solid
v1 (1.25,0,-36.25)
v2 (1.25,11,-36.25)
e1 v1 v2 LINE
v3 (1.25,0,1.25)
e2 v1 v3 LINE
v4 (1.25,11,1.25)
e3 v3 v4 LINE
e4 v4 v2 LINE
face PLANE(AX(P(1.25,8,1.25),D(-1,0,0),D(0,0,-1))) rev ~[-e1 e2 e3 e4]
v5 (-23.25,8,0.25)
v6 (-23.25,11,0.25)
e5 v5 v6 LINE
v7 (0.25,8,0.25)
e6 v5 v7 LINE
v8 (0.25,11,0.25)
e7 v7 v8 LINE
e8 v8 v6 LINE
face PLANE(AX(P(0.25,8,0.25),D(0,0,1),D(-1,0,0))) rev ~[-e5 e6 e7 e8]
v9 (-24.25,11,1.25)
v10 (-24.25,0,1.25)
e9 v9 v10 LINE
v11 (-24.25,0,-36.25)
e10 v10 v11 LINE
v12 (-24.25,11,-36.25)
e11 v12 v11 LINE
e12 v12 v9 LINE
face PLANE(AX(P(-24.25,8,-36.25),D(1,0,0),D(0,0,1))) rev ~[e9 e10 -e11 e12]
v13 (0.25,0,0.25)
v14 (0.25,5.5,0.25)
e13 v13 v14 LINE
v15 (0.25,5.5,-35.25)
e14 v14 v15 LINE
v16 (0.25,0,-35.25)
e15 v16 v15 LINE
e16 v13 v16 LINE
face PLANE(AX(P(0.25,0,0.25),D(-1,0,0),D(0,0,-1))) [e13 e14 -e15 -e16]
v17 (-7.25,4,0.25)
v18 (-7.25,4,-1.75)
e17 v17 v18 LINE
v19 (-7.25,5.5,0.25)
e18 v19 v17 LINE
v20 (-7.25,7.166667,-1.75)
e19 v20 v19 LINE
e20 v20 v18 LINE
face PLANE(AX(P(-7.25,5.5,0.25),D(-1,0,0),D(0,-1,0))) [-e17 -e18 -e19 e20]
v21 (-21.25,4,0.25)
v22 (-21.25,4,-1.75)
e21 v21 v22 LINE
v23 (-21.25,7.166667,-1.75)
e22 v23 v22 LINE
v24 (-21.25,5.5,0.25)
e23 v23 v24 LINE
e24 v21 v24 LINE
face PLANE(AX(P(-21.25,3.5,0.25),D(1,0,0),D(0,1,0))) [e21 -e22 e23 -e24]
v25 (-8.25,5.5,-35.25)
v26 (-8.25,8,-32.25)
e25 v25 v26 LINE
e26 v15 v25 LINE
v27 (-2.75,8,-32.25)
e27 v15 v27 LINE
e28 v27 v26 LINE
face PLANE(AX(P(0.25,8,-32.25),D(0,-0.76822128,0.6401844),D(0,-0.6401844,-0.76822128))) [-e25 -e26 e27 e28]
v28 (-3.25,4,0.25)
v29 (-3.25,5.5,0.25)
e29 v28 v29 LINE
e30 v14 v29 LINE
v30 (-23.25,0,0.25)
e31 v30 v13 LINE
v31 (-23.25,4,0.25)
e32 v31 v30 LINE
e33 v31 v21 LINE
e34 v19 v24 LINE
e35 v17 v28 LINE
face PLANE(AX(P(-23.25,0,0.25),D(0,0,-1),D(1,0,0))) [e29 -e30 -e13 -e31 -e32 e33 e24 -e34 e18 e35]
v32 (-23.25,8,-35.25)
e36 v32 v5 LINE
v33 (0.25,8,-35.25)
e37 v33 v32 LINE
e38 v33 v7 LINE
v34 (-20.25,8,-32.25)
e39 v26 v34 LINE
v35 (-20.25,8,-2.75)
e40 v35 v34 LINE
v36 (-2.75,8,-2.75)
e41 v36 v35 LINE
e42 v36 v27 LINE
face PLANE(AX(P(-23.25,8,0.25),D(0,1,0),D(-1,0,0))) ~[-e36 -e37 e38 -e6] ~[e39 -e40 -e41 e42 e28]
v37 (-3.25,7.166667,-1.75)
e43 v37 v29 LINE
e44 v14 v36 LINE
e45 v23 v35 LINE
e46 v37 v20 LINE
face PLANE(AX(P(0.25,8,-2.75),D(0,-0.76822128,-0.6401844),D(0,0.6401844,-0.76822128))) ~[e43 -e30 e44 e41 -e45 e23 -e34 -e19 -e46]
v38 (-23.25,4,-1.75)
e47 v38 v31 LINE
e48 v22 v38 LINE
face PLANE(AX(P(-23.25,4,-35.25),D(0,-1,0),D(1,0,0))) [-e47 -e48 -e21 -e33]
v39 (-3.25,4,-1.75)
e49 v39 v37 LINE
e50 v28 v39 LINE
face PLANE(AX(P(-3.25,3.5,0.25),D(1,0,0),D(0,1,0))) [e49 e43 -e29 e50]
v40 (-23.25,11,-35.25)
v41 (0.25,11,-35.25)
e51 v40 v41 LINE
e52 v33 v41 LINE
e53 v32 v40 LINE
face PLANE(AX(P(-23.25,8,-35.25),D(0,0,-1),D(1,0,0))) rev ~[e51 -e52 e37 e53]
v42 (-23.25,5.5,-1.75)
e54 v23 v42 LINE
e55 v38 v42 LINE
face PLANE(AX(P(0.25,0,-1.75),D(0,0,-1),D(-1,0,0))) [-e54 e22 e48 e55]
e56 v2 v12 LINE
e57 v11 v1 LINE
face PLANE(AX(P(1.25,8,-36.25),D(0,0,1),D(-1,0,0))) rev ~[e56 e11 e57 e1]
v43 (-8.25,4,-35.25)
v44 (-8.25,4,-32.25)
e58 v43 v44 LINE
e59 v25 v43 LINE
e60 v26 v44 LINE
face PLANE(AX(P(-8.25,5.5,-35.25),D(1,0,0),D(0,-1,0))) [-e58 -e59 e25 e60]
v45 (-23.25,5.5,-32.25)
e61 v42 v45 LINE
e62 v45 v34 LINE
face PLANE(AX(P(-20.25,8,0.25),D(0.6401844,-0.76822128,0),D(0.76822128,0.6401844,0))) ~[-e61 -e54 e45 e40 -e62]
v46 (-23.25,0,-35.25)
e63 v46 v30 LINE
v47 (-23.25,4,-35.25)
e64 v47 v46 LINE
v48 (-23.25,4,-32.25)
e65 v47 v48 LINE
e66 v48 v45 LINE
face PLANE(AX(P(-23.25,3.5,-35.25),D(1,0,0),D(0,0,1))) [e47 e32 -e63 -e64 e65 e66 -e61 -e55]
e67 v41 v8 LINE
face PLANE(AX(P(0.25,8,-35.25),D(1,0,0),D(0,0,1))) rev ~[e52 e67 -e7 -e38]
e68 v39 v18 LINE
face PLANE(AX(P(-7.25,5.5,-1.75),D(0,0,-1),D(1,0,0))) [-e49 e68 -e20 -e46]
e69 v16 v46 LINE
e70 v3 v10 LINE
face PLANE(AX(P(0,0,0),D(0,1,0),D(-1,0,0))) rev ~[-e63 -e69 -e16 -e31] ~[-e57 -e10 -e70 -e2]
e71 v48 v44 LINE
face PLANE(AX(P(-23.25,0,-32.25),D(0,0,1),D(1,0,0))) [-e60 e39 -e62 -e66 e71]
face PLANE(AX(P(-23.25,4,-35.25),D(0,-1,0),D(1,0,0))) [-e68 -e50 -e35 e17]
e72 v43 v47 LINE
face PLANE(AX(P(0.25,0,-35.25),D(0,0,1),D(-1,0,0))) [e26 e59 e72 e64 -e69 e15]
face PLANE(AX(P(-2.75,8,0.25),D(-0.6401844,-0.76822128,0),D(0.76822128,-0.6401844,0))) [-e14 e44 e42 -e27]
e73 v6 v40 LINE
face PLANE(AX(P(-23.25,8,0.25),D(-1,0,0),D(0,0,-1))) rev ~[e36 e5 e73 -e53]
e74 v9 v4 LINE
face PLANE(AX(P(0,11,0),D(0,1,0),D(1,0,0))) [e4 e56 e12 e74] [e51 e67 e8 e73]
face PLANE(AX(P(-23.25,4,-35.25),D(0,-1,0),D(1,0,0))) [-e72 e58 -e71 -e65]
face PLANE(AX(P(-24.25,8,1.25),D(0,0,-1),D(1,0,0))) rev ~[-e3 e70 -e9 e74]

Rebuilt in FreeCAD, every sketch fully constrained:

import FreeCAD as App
import Part
import Sketcher

V = App.Vector
Q = App.Units.Quantity


def add_polygon(sketch, points):
    """Adds a closed chain of lines whose ends are joined by coincident constraints."""
    first, n = sketch.GeometryCount, len(points)
    for a, b in zip(points, points[1:] + points[:1]):
        sketch.addGeometry(Part.LineSegment(App.Vector(*a, 0), App.Vector(*b, 0)), False)
    for i in range(n):
        sketch.addConstraint(Sketcher.Constraint("Coincident", first + i, 2, first + (i + 1) % n, 1))

doc = App.newDocument("Part")
params = doc.addObject("Spreadsheet::Sheet", "Params")
for row, (alias, value) in enumerate([
    ("sketch1_width", "25.5 mm"),
    ("sketch1_height", "37.5 mm"),
    ("pad1_length", "8 mm"),
    ("sketch2_width", "3 mm"),
    ("sketch2_height", "2.5 mm"),
    ("pad2_length", "35.5 mm"),
    ("sketch3_height", "3 mm"),
    ("sketch3_width", "2.5 mm"),
    ("pad3_length", "23.5 mm"),
    ("sketch4_width", "25.5 mm"),
    ("sketch4_width2", "23.5 mm"),
    ("sketch4_height", "37.5 mm"),
    ("sketch4_height2", "35.5 mm"),
    ("pad4_length", "3 mm"),
    ("sketch5_width", "15 mm"),
    ("sketch5_height", "2 mm"),
    ("pad5_length", "3 mm"),
    ("sketch6_width", "2 mm"),
    ("sketch6_width2", "4 mm"),
    ("pad6_length", "2 mm"),
    ("sketch7_width", "4 mm"),
    ("sketch7_width2", "2 mm"),
    ("sketch7_width3", "15 mm"),
    ("sketch7_height", "3 mm"),
    ("pad7_length", "2.5 mm"),
    ("sketch8_width", "2 mm"),
    ("sketch8_width2", "4 mm"),
    ("sketch8_width3", "15 mm"),
    ("sketch8_height", "3 mm"),
    ("pocket1_length", "0.5 mm"),
], start=1):
    params.set(f"A{row}", alias)
    params.set(f"B{row}", "=" + value)
    params.setAlias(f"B{row}", alias)

body = doc.addObject("PartDesign::Body", "Body")

sketch1 = body.newObject("Sketcher::SketchObject", "Sketch")
sketch1.AttachmentSupport = (doc.getObject("XZ_Plane"), [""])
sketch1.MapMode = "FlatFace"
add_polygon(sketch1, [(-24, -36), (-24, 1), (1, 1), (1, -36)])
add_polygon(sketch1, [(-23, 0), (-23, -35), (0, -35), (0, 0)])
sketch1.addConstraint([
    Sketcher.Constraint("Vertical", 0),
    Sketcher.Constraint("Horizontal", 1),
    Sketcher.Constraint("Vertical", 2),
    Sketcher.Constraint("Horizontal", 3),
    Sketcher.Constraint("Vertical", 4),
    Sketcher.Constraint("Horizontal", 5),
    Sketcher.Constraint("Vertical", 6),
    Sketcher.Constraint("Horizontal", 7),
    Sketcher.Constraint("DistanceX", 3, 2, 4, 2, Q("1 mm")),
    Sketcher.Constraint("DistanceY", 3, 2, 4, 2, Q("1 mm")),
    Sketcher.Constraint("DistanceX", 5, 2, 2, 2, Q("1 mm")),
    Sketcher.Constraint("DistanceY", 6, 2, 1, 2, Q("1 mm")),
    Sketcher.Constraint("DistanceX", -1, 1, 5, 2, Q("0.25 mm")),
    Sketcher.Constraint("DistanceY", -1, 1, 6, 2, Q("0.25 mm")),
    Sketcher.Constraint("DistanceX", 1, 1, 1, 2, Q("25.5 mm")),
    Sketcher.Constraint("DistanceY", 0, 1, 0, 2, Q("37.5 mm")),
])
sketch1.setExpression("Constraints[22]", "Params.sketch1_width")
sketch1.setExpression("Constraints[23]", "Params.sketch1_height")
pad1 = body.newObject("PartDesign::Pad", "Pad")
pad1.Profile = sketch1
pad1.setExpression("Length", "Params.pad1_length")
pad1.Reversed = True

sketch2 = body.newObject("Sketcher::SketchObject", "Sketch001")
sketch2.AttachmentSupport = (doc.getObject("XY_Plane"), [""])
sketch2.MapMode = "FlatFace"
sketch2.AttachmentOffset = App.Placement(V(0, 0, 0.25), App.Rotation())
add_polygon(sketch2, [(0.2, 8), (0.2, 5.5), (-2.8, 8)])
sketch2.addConstraint([
    Sketcher.Constraint("Vertical", 0),
    Sketcher.Constraint("Horizontal", 2),
    Sketcher.Constraint("DistanceX", 2, 1, 2, 2, Q("3 mm")),
    Sketcher.Constraint("DistanceY", 0, 2, 0, 1, Q("2.5 mm")),
    Sketcher.Constraint("DistanceY", -1, 1, 1, 2, Q("8 mm")),
    Sketcher.Constraint("DistanceX", -1, 1, 0, 2, Q("0.25 mm")),
])
sketch2.setExpression("Constraints[5]", "Params.sketch2_width")
sketch2.setExpression("Constraints[6]", "Params.sketch2_height")
pad2 = body.newObject("PartDesign::Pad", "Pad001")
pad2.Profile = sketch2
pad2.setExpression("Length", "Params.pad2_length")
pad2.Reversed = True
doc.recompute()

datumplane = body.newObject("PartDesign::Plane", "DatumPlane")
datumplane.AttachmentSupport = (doc.getObject("YZ_Plane"), [""])
datumplane.MapMode = "FlatFace"
datumplane.AttachmentOffset = App.Placement(V(0, 0, -11.5), App.Rotation())
mirrored = body.newObject("PartDesign::Mirrored", "Mirrored")
mirrored.Originals = [pad2]
mirrored.MirrorPlane = (datumplane, [""])
body.Tip = mirrored

sketch3 = body.newObject("Sketcher::SketchObject", "Sketch002")
sketch3.AttachmentSupport = (doc.getObject("YZ_Plane"), [""])
sketch3.MapMode = "FlatFace"
sketch3.AttachmentOffset = App.Placement(V(0, 0, 0.25), App.Rotation())
add_polygon(sketch3, [(8, -35.2), (5.5, -35.2), (8, -32.2)])
sketch3.addConstraint([
    Sketcher.Constraint("Horizontal", 0),
    Sketcher.Constraint("Vertical", 2),
    Sketcher.Constraint("DistanceY", 2, 2, 2, 1, Q("3 mm")),
    Sketcher.Constraint("DistanceX", 0, 2, 0, 1, Q("2.5 mm")),
    Sketcher.Constraint("DistanceX", -1, 1, 1, 2, Q("8 mm")),
    Sketcher.Constraint("DistanceY", 0, 2, -1, 1, Q("35.25 mm")),
])
sketch3.setExpression("Constraints[5]", "Params.sketch3_height")
sketch3.setExpression("Constraints[6]", "Params.sketch3_width")
pad3 = body.newObject("PartDesign::Pad", "Pad002")
pad3.Profile = sketch3
pad3.setExpression("Length", "Params.pad3_length")
pad3.Reversed = True
doc.recompute()

datumplane2 = body.newObject("PartDesign::Plane", "DatumPlane001")
datumplane2.AttachmentSupport = (doc.getObject("XY_Plane"), [""])
datumplane2.MapMode = "FlatFace"
datumplane2.AttachmentOffset = App.Placement(V(0, 0, -17.5), App.Rotation())
mirrored2 = body.newObject("PartDesign::Mirrored", "Mirrored001")
mirrored2.Originals = [pad3]
mirrored2.MirrorPlane = (datumplane2, [""])
body.Tip = mirrored2

sketch4 = body.newObject("Sketcher::SketchObject", "Sketch003")
sketch4.AttachmentSupport = (doc.getObject("XZ_Plane"), [""])
sketch4.MapMode = "FlatFace"
sketch4.AttachmentOffset = App.Placement(V(0, 0, -8), App.Rotation())
add_polygon(sketch4, [(-24, 1), (1, 1), (1, -36), (-24, -36)])
add_polygon(sketch4, [(-23, 0), (-23, -35), (0, -35), (0, 0)])
sketch4.addConstraint([
    Sketcher.Constraint("Horizontal", 0),
    Sketcher.Constraint("Vertical", 1),
    Sketcher.Constraint("Horizontal", 2),
    Sketcher.Constraint("Vertical", 3),
    Sketcher.Constraint("Vertical", 4),
    Sketcher.Constraint("Horizontal", 5),
    Sketcher.Constraint("Vertical", 6),
    Sketcher.Constraint("Horizontal", 7),
    Sketcher.Constraint("DistanceX", 0, 1, 0, 2, Q("25.5 mm")),
    Sketcher.Constraint("DistanceX", 5, 1, 5, 2, Q("23.5 mm")),
    Sketcher.Constraint("DistanceY", 1, 2, 1, 1, Q("37.5 mm")),
    Sketcher.Constraint("DistanceY", 4, 2, 4, 1, Q("35.5 mm")),
    Sketcher.Constraint("DistanceX", 2, 2, 4, 2, Q("1 mm")),
    Sketcher.Constraint("DistanceY", 2, 2, 4, 2, Q("1 mm")),
    Sketcher.Constraint("DistanceX", -1, 1, 0, 2, Q("1.25 mm")),
    Sketcher.Constraint("DistanceY", -1, 1, 0, 2, Q("1.25 mm")),
])
sketch4.setExpression("Constraints[16]", "Params.sketch4_width")
sketch4.setExpression("Constraints[17]", "Params.sketch4_width2")
sketch4.setExpression("Constraints[18]", "Params.sketch4_height")
sketch4.setExpression("Constraints[19]", "Params.sketch4_height2")
pad4 = body.newObject("PartDesign::Pad", "Pad003")
pad4.Profile = sketch4
pad4.setExpression("Length", "Params.pad4_length")
pad4.Reversed = True

sketch5 = body.newObject("Sketcher::SketchObject", "Sketch004")
sketch5.AttachmentSupport = (doc.getObject("XY_Plane"), [""])
sketch5.MapMode = "FlatFace"
sketch5.AttachmentOffset = App.Placement(V(0, 0, -35.25), App.Rotation())
add_polygon(sketch5, [(-8.2, 3.5), (-8.2, 5.5), (-23.2, 5.5), (-23.2, 3.5)])
sketch5.addConstraint([
    Sketcher.Constraint("Vertical", 0),
    Sketcher.Constraint("Horizontal", 1),
    Sketcher.Constraint("Vertical", 2),
    Sketcher.Constraint("Horizontal", 3),
    Sketcher.Constraint("DistanceX", 1, 2, 1, 1, Q("15 mm")),
    Sketcher.Constraint("DistanceY", 0, 1, 0, 2, Q("2 mm")),
    Sketcher.Constraint("DistanceY", -1, 1, 2, 2, Q("3.5 mm")),
    Sketcher.Constraint("DistanceX", 0, 2, -1, 1, Q("8.25 mm")),
])
sketch5.setExpression("Constraints[8]", "Params.sketch5_width")
sketch5.setExpression("Constraints[9]", "Params.sketch5_height")
pad5 = body.newObject("PartDesign::Pad", "Pad004")
pad5.Profile = sketch5
pad5.setExpression("Length", "Params.pad5_length")

sketch6 = body.newObject("Sketcher::SketchObject", "Sketch005")
sketch6.AttachmentSupport = (doc.getObject("XY_Plane"), [""])
sketch6.MapMode = "FlatFace"
sketch6.AttachmentOffset = App.Placement(V(0, 0, 0.25), App.Rotation())
add_polygon(sketch6, [(-21.2, 3.5), (-23.2, 3.5), (-23.2, 5.5), (-21.2, 5.5)])
add_polygon(sketch6, [(-7.2, 3.5), (-7.2, 5.5), (-3.2, 5.5), (-3.2, 3.5)])
sketch6.addConstraint([
    Sketcher.Constraint("Horizontal", 0),
    Sketcher.Constraint("Vertical", 1),
    Sketcher.Constraint("Horizontal", 2),
    Sketcher.Constraint("Vertical", 3),
    Sketcher.Constraint("Vertical", 4),
    Sketcher.Constraint("Horizontal", 5),
    Sketcher.Constraint("Vertical", 6),
    Sketcher.Constraint("Horizontal", 7),
    Sketcher.Constraint("Horizontal", 2, 2, 4, 2),
    Sketcher.Constraint("Horizontal", 3, 2, 6, 2),
    Sketcher.Constraint("Equal", 2, 1),
    Sketcher.Constraint("DistanceX", 0, 2, 0, 1, Q("2 mm")),
    Sketcher.Constraint("DistanceX", 5, 1, 5, 2, Q("4 mm")),
    Sketcher.Constraint("DistanceY", -1, 1, 0, 2, Q("3.5 mm")),
    Sketcher.Constraint("DistanceX", 2, 2, 4, 2, Q("14 mm")),
    Sketcher.Constraint("DistanceX", 0, 2, -1, 1, Q("23.25 mm")),
])
sketch6.setExpression("Constraints[19]", "Params.sketch6_width")
sketch6.setExpression("Constraints[20]", "Params.sketch6_width2")
pad6 = body.newObject("PartDesign::Pad", "Pad005")
pad6.Profile = sketch6
pad6.setExpression("Length", "Params.pad6_length")
pad6.Reversed = True

sketch7 = body.newObject("Sketcher::SketchObject", "Sketch006")
sketch7.AttachmentSupport = (doc.getObject("XZ_Plane"), [""])
sketch7.MapMode = "FlatFace"
sketch7.AttachmentOffset = App.Placement(V(0, 0, -5.5), App.Rotation())
add_polygon(sketch7, [(-7.2, -1.8), (-7.2, 0.2), (-3.2, 0.2), (-3.2, -1.8)])
add_polygon(sketch7, [(-23.2, -1.8), (-23.2, 0.2), (-21.2, 0.2), (-21.2, -1.8)])
add_polygon(sketch7, [(-8.2, -32.2), (-8.2, -35.2), (-23.2, -35.2), (-23.2, -32.2)])
sketch7.addConstraint([
    Sketcher.Constraint("Vertical", 0),
    Sketcher.Constraint("Horizontal", 1),
    Sketcher.Constraint("Vertical", 2),
    Sketcher.Constraint("Horizontal", 3),
    Sketcher.Constraint("Vertical", 4),
    Sketcher.Constraint("Horizontal", 5),
    Sketcher.Constraint("Vertical", 6),
    Sketcher.Constraint("Horizontal", 7),
    Sketcher.Constraint("Vertical", 8),
    Sketcher.Constraint("Horizontal", 9),
    Sketcher.Constraint("Vertical", 10),
    Sketcher.Constraint("Horizontal", 11),
    Sketcher.Constraint("Horizontal", 1, 2, 4, 2),
    Sketcher.Constraint("Horizontal", 3, 2, 6, 2),
    Sketcher.Constraint("Vertical", 7, 2, 9, 2),
    Sketcher.Constraint("Equal", 7, 0),
    Sketcher.Constraint("DistanceX", 1, 1, 1, 2, Q("4 mm")),
    Sketcher.Constraint("DistanceX", 5, 1, 5, 2, Q("2 mm")),
    Sketcher.Constraint("DistanceX", 9, 2, 9, 1, Q("15 mm")),
    Sketcher.Constraint("DistanceY", 8, 2, 8, 1, Q("3 mm")),
    Sketcher.Constraint("DistanceX", 4, 2, 0, 2, Q("16 mm")),
    Sketcher.Constraint("DistanceY", 8, 2, 3, 2, Q("33.5 mm")),
    Sketcher.Constraint("DistanceX", 0, 2, -1, 1, Q("7.25 mm")),
    Sketcher.Constraint("DistanceY", -1, 1, 0, 2, Q("0.25 mm")),
])
sketch7.setExpression("Constraints[28]", "Params.sketch7_width")
sketch7.setExpression("Constraints[29]", "Params.sketch7_width2")
sketch7.setExpression("Constraints[30]", "Params.sketch7_width3")
sketch7.setExpression("Constraints[31]", "Params.sketch7_height")
pad7 = body.newObject("PartDesign::Pad", "Pad006")
pad7.Profile = sketch7
pad7.setExpression("Length", "Params.pad7_length")
pad7.Reversed = True

sketch8 = body.newObject("Sketcher::SketchObject", "Sketch007")
sketch8.AttachmentSupport = (doc.getObject("XZ_Plane"), [""])
sketch8.MapMode = "FlatFace"
sketch8.AttachmentOffset = App.Placement(V(0, 0, -3.5), App.Rotation())
add_polygon(sketch8, [(-21.2, 0.2), (-23.2, 0.2), (-23.2, -1.8), (-21.2, -1.8)])
add_polygon(sketch8, [(-3.2, 0.2), (-7.2, 0.2), (-7.2, -1.8), (-3.2, -1.8)])
add_polygon(sketch8, [(-23.2, -35.2), (-8.2, -35.2), (-8.2, -32.2), (-23.2, -32.2)])
sketch8.addConstraint([
    Sketcher.Constraint("Horizontal", 0),
    Sketcher.Constraint("Vertical", 1),
    Sketcher.Constraint("Horizontal", 2),
    Sketcher.Constraint("Vertical", 3),
    Sketcher.Constraint("Horizontal", 4),
    Sketcher.Constraint("Vertical", 5),
    Sketcher.Constraint("Horizontal", 6),
    Sketcher.Constraint("Vertical", 7),
    Sketcher.Constraint("Horizontal", 8),
    Sketcher.Constraint("Vertical", 9),
    Sketcher.Constraint("Horizontal", 10),
    Sketcher.Constraint("Vertical", 11),
    Sketcher.Constraint("Horizontal", 3, 2, 4, 2),
    Sketcher.Constraint("Horizontal", 2, 2, 5, 2),
    Sketcher.Constraint("Vertical", 1, 2, 10, 2),
    Sketcher.Constraint("Equal", 2, 1),
    Sketcher.Constraint("DistanceX", 0, 2, 0, 1, Q("2 mm")),
    Sketcher.Constraint("DistanceX", 4, 2, 4, 1, Q("4 mm")),
    Sketcher.Constraint("DistanceX", 8, 1, 8, 2, Q("15 mm")),
    Sketcher.Constraint("DistanceY", 9, 1, 9, 2, Q("3 mm")),
    Sketcher.Constraint("DistanceX", 3, 2, 4, 2, Q("14 mm")),
    Sketcher.Constraint("DistanceY", 8, 2, 5, 2, Q("33.5 mm")),
    Sketcher.Constraint("DistanceX", 0, 2, -1, 1, Q("23.25 mm")),
    Sketcher.Constraint("DistanceY", -1, 1, 0, 2, Q("0.25 mm")),
])
sketch8.setExpression("Constraints[28]", "Params.sketch8_width")
sketch8.setExpression("Constraints[29]", "Params.sketch8_width2")
sketch8.setExpression("Constraints[30]", "Params.sketch8_width3")
sketch8.setExpression("Constraints[31]", "Params.sketch8_height")
pocket1 = body.newObject("PartDesign::Pocket", "Pocket")
pocket1.Profile = sketch8
pocket1.setExpression("Length", "Params.pocket1_length")

doc.recompute()
